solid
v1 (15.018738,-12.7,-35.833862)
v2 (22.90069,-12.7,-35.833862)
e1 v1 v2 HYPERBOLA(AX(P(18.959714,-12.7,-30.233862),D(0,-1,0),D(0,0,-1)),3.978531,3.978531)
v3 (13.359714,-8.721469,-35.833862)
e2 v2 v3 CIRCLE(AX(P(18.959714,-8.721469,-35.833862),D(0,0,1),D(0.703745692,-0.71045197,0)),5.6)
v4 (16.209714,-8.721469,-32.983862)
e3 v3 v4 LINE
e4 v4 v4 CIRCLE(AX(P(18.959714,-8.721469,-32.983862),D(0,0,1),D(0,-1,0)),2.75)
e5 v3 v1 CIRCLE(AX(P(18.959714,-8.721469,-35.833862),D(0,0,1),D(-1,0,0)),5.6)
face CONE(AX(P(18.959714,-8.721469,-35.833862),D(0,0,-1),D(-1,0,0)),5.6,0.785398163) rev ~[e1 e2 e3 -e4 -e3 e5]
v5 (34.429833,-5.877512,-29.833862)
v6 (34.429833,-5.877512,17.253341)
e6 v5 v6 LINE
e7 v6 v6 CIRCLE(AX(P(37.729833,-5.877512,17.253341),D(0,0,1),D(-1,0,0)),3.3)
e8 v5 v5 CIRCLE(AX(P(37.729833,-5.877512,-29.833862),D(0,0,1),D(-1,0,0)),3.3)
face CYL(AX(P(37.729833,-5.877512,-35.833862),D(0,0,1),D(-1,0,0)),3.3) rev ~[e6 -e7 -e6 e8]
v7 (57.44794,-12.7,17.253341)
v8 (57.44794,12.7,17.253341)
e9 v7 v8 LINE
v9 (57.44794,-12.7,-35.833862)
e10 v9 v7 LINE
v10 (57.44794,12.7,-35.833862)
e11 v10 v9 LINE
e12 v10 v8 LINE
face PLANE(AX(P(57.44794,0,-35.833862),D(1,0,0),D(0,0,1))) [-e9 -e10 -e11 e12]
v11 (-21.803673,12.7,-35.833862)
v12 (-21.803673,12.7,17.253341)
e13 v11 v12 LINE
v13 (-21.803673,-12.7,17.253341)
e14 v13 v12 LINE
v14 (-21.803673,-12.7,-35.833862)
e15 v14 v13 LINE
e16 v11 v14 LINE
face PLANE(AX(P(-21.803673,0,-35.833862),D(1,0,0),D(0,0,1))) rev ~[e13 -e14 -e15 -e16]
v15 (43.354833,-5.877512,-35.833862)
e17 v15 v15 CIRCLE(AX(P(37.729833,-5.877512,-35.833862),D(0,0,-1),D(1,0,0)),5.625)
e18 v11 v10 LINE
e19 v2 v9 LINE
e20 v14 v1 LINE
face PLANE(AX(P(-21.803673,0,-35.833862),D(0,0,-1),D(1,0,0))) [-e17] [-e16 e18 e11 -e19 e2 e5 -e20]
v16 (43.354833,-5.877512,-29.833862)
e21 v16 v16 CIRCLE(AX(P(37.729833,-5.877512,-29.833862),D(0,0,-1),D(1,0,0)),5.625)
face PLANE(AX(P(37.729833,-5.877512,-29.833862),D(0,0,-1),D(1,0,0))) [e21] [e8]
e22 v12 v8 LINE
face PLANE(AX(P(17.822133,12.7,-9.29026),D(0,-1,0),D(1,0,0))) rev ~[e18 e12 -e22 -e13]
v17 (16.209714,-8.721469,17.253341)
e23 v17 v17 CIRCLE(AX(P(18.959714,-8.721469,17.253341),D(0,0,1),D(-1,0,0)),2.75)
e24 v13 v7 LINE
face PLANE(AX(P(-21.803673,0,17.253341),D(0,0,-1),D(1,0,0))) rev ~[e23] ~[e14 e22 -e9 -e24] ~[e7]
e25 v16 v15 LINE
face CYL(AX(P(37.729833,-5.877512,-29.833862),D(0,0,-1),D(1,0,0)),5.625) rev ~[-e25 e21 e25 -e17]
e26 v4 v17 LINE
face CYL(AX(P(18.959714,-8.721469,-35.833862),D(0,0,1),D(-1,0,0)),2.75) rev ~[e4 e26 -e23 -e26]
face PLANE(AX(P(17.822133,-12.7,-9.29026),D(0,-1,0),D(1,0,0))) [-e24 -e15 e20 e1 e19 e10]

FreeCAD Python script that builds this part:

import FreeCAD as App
import Part
import Sketcher

V = App.Vector

doc = App.newDocument("Part")
params = doc.addObject("Spreadsheet::Sheet", "Params")
for row, (alias, value) in enumerate([
    ("pad1_length", "25.4 mm"),
    ("sketch2_diameter", "5.5 mm"),
    ("hole_diameter", "5.5 mm"),
    ("hole_csink_diameter", "11.2 mm"),
    ("sketch3_diameter", "6.6 mm"),
    ("hole2_diameter", "6.6 mm"),
    ("hole2_cbore_diameter", "11.25 mm"),
    ("hole2_cbore_depth", "6 mm"),
], start=1):
    params.set(f"A{row}", alias)
    params.set(f"B{row}", "=" + value)
    params.setAlias(f"B{row}", alias)

body = doc.addObject("PartDesign::Body", "Body")

sketch1 = doc.addObject("Sketcher::SketchObject", "Sketch")
body.addObject(sketch1)
sketch1.AttachmentSupport = (doc.XZ_Plane, [""])
sketch1.MapMode = "FlatFace"
sketch1.addGeometry(Part.LineSegment(V(-22, 17, 0), V(-22, -36, 0)), False)
sketch1.addGeometry(Part.LineSegment(V(-22, -36, 0), V(57, -36, 0)), False)
sketch1.addGeometry(Part.LineSegment(V(57, -36, 0), V(57, 17, 0)), False)
sketch1.addGeometry(Part.LineSegment(V(57, 17, 0), V(-22, 17, 0)), False)
sketch1.addConstraint(Sketcher.Constraint("Coincident", 0, 2, 1, 1))
sketch1.addConstraint(Sketcher.Constraint("Coincident", 1, 2, 2, 1))
sketch1.addConstraint(Sketcher.Constraint("Coincident", 2, 2, 3, 1))
sketch1.addConstraint(Sketcher.Constraint("Coincident", 3, 2, 0, 1))
sketch1.addConstraint(Sketcher.Constraint("Vertical", 0))
sketch1.addConstraint(Sketcher.Constraint("Horizontal", 1))
sketch1.addConstraint(Sketcher.Constraint("Vertical", 2))
sketch1.addConstraint(Sketcher.Constraint("Horizontal", 3))
sketch1.addConstraint(Sketcher.Constraint("DistanceX", 1, 1, 1, 2, 79.251613))
sketch1.addConstraint(Sketcher.Constraint("DistanceY", 0, 2, 0, 1, 53.087203))
sketch1.addConstraint(Sketcher.Constraint("DistanceY", 0, 2, -1, 1, 35.833862))
sketch1.addConstraint(Sketcher.Constraint("DistanceX", -1, 1, 1, 2, 57.44794))
pad1 = doc.addObject("PartDesign::Pad", "Pad")
body.addObject(pad1)
pad1.Profile = sketch1
pad1.setExpression("Length", "Params.pad1_length")
pad1.Midplane = True

sketch2 = doc.addObject("Sketcher::SketchObject", "Sketch001")
body.addObject(sketch2)
sketch2.AttachmentSupport = (doc.XY_Plane, [""])
sketch2.MapMode = "FlatFace"
sketch2.AttachmentOffset = App.Placement(V(0, 0, -35.833862), App.Rotation())
sketch2.addGeometry(Part.Circle(V(19, -8.7, 0), V(0, 0, 1), 2.8), False)
sketch2.addConstraint(Sketcher.Constraint("Diameter", 0, 5.5))
sketch2.addConstraint(Sketcher.Constraint("DistanceY", 0, 3, -1, 1, 8.721469))
sketch2.addConstraint(Sketcher.Constraint("DistanceX", -1, 1, 0, 3, 18.959714))
sketch2.setExpression("Constraints[0]", "Params.sketch2_diameter")
doc.recompute()
hole = doc.addObject("PartDesign::Hole", "Hole")
body.addObject(hole)
hole.Profile = sketch2
hole.ThreadType = "None"
hole.setExpression("Diameter", "Params.hole_diameter")
hole.DepthType = "ThroughAll"
hole.HoleCutType = "Countersink"
hole.setExpression("HoleCutDiameter", "Params.hole_csink_diameter")
hole.HoleCutCountersinkAngle = 90
hole.Reversed = True

sketch3 = doc.addObject("Sketcher::SketchObject", "Sketch002")
body.addObject(sketch3)
sketch3.AttachmentSupport = (doc.XY_Plane, [""])
sketch3.MapMode = "FlatFace"
sketch3.AttachmentOffset = App.Placement(V(0, 0, -35.833862), App.Rotation())
sketch3.addGeometry(Part.Circle(V(37.7, -5.9, 0), V(0, 0, 1), 3.3), False)
sketch3.addConstraint(Sketcher.Constraint("Diameter", 0, 6.6))
sketch3.addConstraint(Sketcher.Constraint("DistanceX", -1, 1, 0, 3, 37.729833))
sketch3.addConstraint(Sketcher.Constraint("DistanceY", 0, 3, -1, 1, 5.877512))
sketch3.setExpression("Constraints[0]", "Params.sketch3_diameter")
doc.recompute()
hole2 = doc.addObject("PartDesign::Hole", "Hole001")
body.addObject(hole2)
hole2.Profile = sketch3
hole2.ThreadType = "None"
hole2.setExpression("Diameter", "Params.hole2_diameter")
hole2.DepthType = "ThroughAll"
hole2.HoleCutType = "Counterbore"
hole2.setExpression("HoleCutDiameter", "Params.hole2_cbore_diameter")
hole2.setExpression("HoleCutDepth", "Params.hole2_cbore_depth")
hole2.Reversed = True

doc.recompute()
